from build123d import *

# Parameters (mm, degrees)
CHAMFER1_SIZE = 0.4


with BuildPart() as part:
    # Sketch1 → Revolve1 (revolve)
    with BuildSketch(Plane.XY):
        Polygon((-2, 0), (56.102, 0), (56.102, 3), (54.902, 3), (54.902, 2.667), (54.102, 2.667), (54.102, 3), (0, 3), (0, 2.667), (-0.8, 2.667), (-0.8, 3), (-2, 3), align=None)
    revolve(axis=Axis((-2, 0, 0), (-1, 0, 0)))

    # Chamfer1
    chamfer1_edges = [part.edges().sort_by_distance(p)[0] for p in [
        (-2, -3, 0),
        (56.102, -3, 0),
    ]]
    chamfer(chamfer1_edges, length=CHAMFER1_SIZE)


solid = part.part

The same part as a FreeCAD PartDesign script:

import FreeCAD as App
import Part
import Sketcher
from FreeCAD import Vector


def edges_at(feature, points):
    """Names of the edges that pass closest to the given points."""
    edges = feature.Shape.Edges
    near = lambda p: min(range(len(edges)), key=lambda i: edges[i].distToShape(Part.Vertex(*p))[0])
    return sorted({f"Edge{near(p) + 1}" for p in points})


def add_polygon(sketch, points):
    """Adds a closed chain of lines whose ends are joined by coincident constraints."""
    first, n = sketch.GeometryCount, len(points)
    for a, b in zip(points, points[1:] + points[:1]):
        sketch.addGeometry(Part.LineSegment(App.Vector(*a, 0), App.Vector(*b, 0)), False)
    for i in range(n):
        sketch.addConstraint(Sketcher.Constraint("Coincident", first + i, 2, first + (i + 1) % n, 1))

doc = App.newDocument("Part")
body = doc.addObject("PartDesign::Body", "Body")

# Sketch on XY plane
sketch1 = body.newObject("Sketcher::SketchObject", "Sketch")
sketch1.AttachmentSupport = (doc.getObject("XY_Plane"), [""])
sketch1.MapMode = "FlatFace"
add_polygon(sketch1, [(-2, 0), (56.1, 0), (56.1, 3), (54.9, 3), (54.9, 2.67), (54.1, 2.67), (54.1, 3), (0, 3), (0, 2.67), (-0.8, 2.67), (-0.8, 3), (-2, 3)])  # lines 0-11
sketch1.addConstraint([
    Sketcher.Constraint("Horizontal", 0),
    Sketcher.Constraint("Vertical", 1),
    Sketcher.Constraint("Horizontal", 2),
    Sketcher.Constraint("Vertical", 3),
    Sketcher.Constraint("Horizontal", 4),
    Sketcher.Constraint("Vertical", 5),
    Sketcher.Constraint("Horizontal", 6),
    Sketcher.Constraint("Vertical", 7),
    Sketcher.Constraint("Horizontal", 8),
    Sketcher.Constraint("Vertical", 9),
    Sketcher.Constraint("Horizontal", 10),
    Sketcher.Constraint("Vertical", 11),
    Sketcher.Constraint("PointOnObject", 0, 2, -1),
    Sketcher.Constraint("PointOnObject", 6, 2, -2),
    Sketcher.Constraint("Horizontal", 2, 2, 5, 2),
    Sketcher.Constraint("Horizontal", 4, 2, 7, 2),
    Sketcher.Constraint("Horizontal", 6, 2, 9, 2),
    Sketcher.Constraint("Equal", 4, 8),
    Sketcher.Constraint("Equal", 2, 10),
    Sketcher.Constraint("DistanceY", 1, 1, 1, 2, 3.0),
    Sketcher.Constraint("DistanceX", 2, 2, 2, 1, 1.2),
    Sketcher.Constraint("DistanceX", 4, 2, 4, 1, 0.8),
    Sketcher.Constraint("DistanceX", 0, 1, 0, 2, 58.102),
    Sketcher.Constraint("DistanceY", 3, 2, 3, 1, 0.333),
])
revolution = body.newObject("PartDesign::Revolution", "Revolution")
revolution.Profile = sketch1
revolution.ReferenceAxis = (sketch1, ["H_Axis"])
revolution.Angle = 360
doc.recompute()

chamfer = body.newObject("PartDesign::Chamfer", "Chamfer")
chamfer.Base = (revolution, edges_at(revolution, [(-2, -3, 0), (56.102, -3, 0)]))
chamfer.Size = 0.4

doc.recompute()
